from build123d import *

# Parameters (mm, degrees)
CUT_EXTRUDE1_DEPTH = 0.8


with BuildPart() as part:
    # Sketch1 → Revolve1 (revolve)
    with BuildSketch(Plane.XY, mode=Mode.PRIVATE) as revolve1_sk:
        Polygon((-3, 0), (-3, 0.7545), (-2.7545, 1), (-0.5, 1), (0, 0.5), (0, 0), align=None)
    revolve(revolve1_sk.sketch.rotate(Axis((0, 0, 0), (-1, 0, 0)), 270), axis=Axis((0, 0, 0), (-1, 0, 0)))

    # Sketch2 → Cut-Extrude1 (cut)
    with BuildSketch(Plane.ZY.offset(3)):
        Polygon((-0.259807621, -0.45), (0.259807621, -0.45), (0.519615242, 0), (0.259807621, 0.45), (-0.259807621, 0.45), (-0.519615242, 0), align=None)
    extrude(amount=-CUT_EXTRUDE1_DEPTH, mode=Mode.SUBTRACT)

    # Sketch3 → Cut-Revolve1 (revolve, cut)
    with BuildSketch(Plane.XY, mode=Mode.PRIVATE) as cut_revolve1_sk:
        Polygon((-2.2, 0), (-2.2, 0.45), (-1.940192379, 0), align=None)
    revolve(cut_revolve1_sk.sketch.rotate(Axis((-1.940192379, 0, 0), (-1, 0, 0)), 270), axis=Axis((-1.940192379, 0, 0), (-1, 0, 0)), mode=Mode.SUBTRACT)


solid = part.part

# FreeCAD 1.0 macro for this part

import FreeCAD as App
import Part
import Sketcher

V = App.Vector
Q = App.Units.Quantity


def add_polygon(sketch, points):
    """Adds a closed chain of lines whose ends are joined by coincident constraints."""
    first, n = sketch.GeometryCount, len(points)
    for a, b in zip(points, points[1:] + points[:1]):
        sketch.addGeometry(Part.LineSegment(App.Vector(*a, 0), App.Vector(*b, 0)), False)
    for i in range(n):
        sketch.addConstraint(Sketcher.Constraint("Coincident", first + i, 2, first + (i + 1) % n, 1))

doc = App.newDocument("Part")
body = doc.addObject("PartDesign::Body", "Body")

sketch1 = doc.addObject("Sketcher::SketchObject", "Sketch")
body.addObject(sketch1)
sketch1.AttachmentSupport = (doc.XY_Plane, [""])
sketch1.MapMode = "FlatFace"
add_polygon(sketch1, [(-3, 0.75), (-3, 0), (0, 0), (0, 0.5), (-0.5, 1), (-2.75, 1)])
sketch1.addConstraint(Sketcher.Constraint("Vertical", 0))
sketch1.addConstraint(Sketcher.Constraint("Horizontal", 1))
sketch1.addConstraint(Sketcher.Constraint("Vertical", 2))
sketch1.addConstraint(Sketcher.Constraint("Horizontal", 4))
sketch1.addConstraint(Sketcher.Constraint("Coincident", 1, 2, -1, 1))
sketch1.addConstraint(Sketcher.Constraint("Perpendicular", 3, 5))
sketch1.addConstraint(Sketcher.Constraint("DistanceX", 1, 1, 1, 2, 3.0))
sketch1.addConstraint(Sketcher.Constraint("Angle", 3, Q("135 deg")))
sketch1.addConstraint(Sketcher.Constraint("DistanceY", 2, 1, 2, 2, 0.5))
sketch1.addConstraint(Sketcher.Constraint("DistanceY", -1, 1, 3, 2, 1.0))
sketch1.addConstraint(Sketcher.Constraint("DistanceX", 4, 2, 4, 1, 2.2545))
revolution = doc.addObject("PartDesign::Revolution", "Revolution")
body.addObject(revolution)
revolution.Profile = sketch1
revolution.ReferenceAxis = (sketch1, ["H_Axis"])
revolution.Angle = 360

sketch2 = doc.addObject("Sketcher::SketchObject", "Sketch001")
body.addObject(sketch2)
sketch2.AttachmentSupport = (doc.YZ_Plane, [""])
sketch2.MapMode = "FlatFace"
sketch2.AttachmentOffset = App.Placement(V(0, 0, -3), App.Rotation())
add_polygon(sketch2, [(-0.5, -0.3), (-0.5, 0.3), (0, 0.5), (0.5, 0.3), (0.5, -0.3), (0, -0.5)])
sketch2.addConstraint(Sketcher.Constraint("Vertical", 0))
sketch2.addConstraint(Sketcher.Constraint("Vertical", 3))
sketch2.addConstraint(Sketcher.Constraint("Symmetric", 0, 2, 3, 2, -1, 1))
sketch2.addConstraint(Sketcher.Constraint("Symmetric", 1, 2, 4, 2, -1, 1))
sketch2.addConstraint(Sketcher.Constraint("PointOnObject", 1, 2, -2))
sketch2.addConstraint(Sketcher.Constraint("Parallel", 2, 5))
sketch2.addConstraint(Sketcher.Constraint("Horizontal", 0, 2, 2, 2))
sketch2.addConstraint(Sketcher.Constraint("Angle", 1, Q("30 deg")))
sketch2.addConstraint(Sketcher.Constraint("DistanceX", 0, 2, 2, 2, 0.9))
sketch2.addConstraint(Sketcher.Constraint("DistanceY", 0, 1, 0, 2, 0.519615))
pocket1 = doc.addObject("PartDesign::Pocket", "Pocket")
body.addObject(pocket1)
pocket1.Profile = sketch2
pocket1.Length = 0.8
pocket1.Reversed = True

sketch3 = doc.addObject("Sketcher::SketchObject", "Sketch002")
body.addObject(sketch3)
sketch3.AttachmentSupport = (doc.XY_Plane, [""])
sketch3.MapMode = "FlatFace"
add_polygon(sketch3, [(-2.2, 0.45), (-2.2, 0), (-1.94, 0)])
sketch3.addConstraint(Sketcher.Constraint("Vertical", 0))
sketch3.addConstraint(Sketcher.Constraint("Horizontal", 1))
sketch3.addConstraint(Sketcher.Constraint("PointOnObject", 0, 2, -1))
sketch3.addConstraint(Sketcher.Constraint("Angle", 2, Q("120 deg")))
sketch3.addConstraint(Sketcher.Constraint("DistanceY", 0, 2, 0, 1, 0.45))
sketch3.addConstraint(Sketcher.Constraint("DistanceX", 0, 2, -1, 1, 2.2))
groove = doc.addObject("PartDesign::Groove", "Groove")
body.addObject(groove)
groove.Profile = sketch3
groove.ReferenceAxis = (sketch3, ["H_Axis"])
groove.Angle = 360

doc.recompute()
